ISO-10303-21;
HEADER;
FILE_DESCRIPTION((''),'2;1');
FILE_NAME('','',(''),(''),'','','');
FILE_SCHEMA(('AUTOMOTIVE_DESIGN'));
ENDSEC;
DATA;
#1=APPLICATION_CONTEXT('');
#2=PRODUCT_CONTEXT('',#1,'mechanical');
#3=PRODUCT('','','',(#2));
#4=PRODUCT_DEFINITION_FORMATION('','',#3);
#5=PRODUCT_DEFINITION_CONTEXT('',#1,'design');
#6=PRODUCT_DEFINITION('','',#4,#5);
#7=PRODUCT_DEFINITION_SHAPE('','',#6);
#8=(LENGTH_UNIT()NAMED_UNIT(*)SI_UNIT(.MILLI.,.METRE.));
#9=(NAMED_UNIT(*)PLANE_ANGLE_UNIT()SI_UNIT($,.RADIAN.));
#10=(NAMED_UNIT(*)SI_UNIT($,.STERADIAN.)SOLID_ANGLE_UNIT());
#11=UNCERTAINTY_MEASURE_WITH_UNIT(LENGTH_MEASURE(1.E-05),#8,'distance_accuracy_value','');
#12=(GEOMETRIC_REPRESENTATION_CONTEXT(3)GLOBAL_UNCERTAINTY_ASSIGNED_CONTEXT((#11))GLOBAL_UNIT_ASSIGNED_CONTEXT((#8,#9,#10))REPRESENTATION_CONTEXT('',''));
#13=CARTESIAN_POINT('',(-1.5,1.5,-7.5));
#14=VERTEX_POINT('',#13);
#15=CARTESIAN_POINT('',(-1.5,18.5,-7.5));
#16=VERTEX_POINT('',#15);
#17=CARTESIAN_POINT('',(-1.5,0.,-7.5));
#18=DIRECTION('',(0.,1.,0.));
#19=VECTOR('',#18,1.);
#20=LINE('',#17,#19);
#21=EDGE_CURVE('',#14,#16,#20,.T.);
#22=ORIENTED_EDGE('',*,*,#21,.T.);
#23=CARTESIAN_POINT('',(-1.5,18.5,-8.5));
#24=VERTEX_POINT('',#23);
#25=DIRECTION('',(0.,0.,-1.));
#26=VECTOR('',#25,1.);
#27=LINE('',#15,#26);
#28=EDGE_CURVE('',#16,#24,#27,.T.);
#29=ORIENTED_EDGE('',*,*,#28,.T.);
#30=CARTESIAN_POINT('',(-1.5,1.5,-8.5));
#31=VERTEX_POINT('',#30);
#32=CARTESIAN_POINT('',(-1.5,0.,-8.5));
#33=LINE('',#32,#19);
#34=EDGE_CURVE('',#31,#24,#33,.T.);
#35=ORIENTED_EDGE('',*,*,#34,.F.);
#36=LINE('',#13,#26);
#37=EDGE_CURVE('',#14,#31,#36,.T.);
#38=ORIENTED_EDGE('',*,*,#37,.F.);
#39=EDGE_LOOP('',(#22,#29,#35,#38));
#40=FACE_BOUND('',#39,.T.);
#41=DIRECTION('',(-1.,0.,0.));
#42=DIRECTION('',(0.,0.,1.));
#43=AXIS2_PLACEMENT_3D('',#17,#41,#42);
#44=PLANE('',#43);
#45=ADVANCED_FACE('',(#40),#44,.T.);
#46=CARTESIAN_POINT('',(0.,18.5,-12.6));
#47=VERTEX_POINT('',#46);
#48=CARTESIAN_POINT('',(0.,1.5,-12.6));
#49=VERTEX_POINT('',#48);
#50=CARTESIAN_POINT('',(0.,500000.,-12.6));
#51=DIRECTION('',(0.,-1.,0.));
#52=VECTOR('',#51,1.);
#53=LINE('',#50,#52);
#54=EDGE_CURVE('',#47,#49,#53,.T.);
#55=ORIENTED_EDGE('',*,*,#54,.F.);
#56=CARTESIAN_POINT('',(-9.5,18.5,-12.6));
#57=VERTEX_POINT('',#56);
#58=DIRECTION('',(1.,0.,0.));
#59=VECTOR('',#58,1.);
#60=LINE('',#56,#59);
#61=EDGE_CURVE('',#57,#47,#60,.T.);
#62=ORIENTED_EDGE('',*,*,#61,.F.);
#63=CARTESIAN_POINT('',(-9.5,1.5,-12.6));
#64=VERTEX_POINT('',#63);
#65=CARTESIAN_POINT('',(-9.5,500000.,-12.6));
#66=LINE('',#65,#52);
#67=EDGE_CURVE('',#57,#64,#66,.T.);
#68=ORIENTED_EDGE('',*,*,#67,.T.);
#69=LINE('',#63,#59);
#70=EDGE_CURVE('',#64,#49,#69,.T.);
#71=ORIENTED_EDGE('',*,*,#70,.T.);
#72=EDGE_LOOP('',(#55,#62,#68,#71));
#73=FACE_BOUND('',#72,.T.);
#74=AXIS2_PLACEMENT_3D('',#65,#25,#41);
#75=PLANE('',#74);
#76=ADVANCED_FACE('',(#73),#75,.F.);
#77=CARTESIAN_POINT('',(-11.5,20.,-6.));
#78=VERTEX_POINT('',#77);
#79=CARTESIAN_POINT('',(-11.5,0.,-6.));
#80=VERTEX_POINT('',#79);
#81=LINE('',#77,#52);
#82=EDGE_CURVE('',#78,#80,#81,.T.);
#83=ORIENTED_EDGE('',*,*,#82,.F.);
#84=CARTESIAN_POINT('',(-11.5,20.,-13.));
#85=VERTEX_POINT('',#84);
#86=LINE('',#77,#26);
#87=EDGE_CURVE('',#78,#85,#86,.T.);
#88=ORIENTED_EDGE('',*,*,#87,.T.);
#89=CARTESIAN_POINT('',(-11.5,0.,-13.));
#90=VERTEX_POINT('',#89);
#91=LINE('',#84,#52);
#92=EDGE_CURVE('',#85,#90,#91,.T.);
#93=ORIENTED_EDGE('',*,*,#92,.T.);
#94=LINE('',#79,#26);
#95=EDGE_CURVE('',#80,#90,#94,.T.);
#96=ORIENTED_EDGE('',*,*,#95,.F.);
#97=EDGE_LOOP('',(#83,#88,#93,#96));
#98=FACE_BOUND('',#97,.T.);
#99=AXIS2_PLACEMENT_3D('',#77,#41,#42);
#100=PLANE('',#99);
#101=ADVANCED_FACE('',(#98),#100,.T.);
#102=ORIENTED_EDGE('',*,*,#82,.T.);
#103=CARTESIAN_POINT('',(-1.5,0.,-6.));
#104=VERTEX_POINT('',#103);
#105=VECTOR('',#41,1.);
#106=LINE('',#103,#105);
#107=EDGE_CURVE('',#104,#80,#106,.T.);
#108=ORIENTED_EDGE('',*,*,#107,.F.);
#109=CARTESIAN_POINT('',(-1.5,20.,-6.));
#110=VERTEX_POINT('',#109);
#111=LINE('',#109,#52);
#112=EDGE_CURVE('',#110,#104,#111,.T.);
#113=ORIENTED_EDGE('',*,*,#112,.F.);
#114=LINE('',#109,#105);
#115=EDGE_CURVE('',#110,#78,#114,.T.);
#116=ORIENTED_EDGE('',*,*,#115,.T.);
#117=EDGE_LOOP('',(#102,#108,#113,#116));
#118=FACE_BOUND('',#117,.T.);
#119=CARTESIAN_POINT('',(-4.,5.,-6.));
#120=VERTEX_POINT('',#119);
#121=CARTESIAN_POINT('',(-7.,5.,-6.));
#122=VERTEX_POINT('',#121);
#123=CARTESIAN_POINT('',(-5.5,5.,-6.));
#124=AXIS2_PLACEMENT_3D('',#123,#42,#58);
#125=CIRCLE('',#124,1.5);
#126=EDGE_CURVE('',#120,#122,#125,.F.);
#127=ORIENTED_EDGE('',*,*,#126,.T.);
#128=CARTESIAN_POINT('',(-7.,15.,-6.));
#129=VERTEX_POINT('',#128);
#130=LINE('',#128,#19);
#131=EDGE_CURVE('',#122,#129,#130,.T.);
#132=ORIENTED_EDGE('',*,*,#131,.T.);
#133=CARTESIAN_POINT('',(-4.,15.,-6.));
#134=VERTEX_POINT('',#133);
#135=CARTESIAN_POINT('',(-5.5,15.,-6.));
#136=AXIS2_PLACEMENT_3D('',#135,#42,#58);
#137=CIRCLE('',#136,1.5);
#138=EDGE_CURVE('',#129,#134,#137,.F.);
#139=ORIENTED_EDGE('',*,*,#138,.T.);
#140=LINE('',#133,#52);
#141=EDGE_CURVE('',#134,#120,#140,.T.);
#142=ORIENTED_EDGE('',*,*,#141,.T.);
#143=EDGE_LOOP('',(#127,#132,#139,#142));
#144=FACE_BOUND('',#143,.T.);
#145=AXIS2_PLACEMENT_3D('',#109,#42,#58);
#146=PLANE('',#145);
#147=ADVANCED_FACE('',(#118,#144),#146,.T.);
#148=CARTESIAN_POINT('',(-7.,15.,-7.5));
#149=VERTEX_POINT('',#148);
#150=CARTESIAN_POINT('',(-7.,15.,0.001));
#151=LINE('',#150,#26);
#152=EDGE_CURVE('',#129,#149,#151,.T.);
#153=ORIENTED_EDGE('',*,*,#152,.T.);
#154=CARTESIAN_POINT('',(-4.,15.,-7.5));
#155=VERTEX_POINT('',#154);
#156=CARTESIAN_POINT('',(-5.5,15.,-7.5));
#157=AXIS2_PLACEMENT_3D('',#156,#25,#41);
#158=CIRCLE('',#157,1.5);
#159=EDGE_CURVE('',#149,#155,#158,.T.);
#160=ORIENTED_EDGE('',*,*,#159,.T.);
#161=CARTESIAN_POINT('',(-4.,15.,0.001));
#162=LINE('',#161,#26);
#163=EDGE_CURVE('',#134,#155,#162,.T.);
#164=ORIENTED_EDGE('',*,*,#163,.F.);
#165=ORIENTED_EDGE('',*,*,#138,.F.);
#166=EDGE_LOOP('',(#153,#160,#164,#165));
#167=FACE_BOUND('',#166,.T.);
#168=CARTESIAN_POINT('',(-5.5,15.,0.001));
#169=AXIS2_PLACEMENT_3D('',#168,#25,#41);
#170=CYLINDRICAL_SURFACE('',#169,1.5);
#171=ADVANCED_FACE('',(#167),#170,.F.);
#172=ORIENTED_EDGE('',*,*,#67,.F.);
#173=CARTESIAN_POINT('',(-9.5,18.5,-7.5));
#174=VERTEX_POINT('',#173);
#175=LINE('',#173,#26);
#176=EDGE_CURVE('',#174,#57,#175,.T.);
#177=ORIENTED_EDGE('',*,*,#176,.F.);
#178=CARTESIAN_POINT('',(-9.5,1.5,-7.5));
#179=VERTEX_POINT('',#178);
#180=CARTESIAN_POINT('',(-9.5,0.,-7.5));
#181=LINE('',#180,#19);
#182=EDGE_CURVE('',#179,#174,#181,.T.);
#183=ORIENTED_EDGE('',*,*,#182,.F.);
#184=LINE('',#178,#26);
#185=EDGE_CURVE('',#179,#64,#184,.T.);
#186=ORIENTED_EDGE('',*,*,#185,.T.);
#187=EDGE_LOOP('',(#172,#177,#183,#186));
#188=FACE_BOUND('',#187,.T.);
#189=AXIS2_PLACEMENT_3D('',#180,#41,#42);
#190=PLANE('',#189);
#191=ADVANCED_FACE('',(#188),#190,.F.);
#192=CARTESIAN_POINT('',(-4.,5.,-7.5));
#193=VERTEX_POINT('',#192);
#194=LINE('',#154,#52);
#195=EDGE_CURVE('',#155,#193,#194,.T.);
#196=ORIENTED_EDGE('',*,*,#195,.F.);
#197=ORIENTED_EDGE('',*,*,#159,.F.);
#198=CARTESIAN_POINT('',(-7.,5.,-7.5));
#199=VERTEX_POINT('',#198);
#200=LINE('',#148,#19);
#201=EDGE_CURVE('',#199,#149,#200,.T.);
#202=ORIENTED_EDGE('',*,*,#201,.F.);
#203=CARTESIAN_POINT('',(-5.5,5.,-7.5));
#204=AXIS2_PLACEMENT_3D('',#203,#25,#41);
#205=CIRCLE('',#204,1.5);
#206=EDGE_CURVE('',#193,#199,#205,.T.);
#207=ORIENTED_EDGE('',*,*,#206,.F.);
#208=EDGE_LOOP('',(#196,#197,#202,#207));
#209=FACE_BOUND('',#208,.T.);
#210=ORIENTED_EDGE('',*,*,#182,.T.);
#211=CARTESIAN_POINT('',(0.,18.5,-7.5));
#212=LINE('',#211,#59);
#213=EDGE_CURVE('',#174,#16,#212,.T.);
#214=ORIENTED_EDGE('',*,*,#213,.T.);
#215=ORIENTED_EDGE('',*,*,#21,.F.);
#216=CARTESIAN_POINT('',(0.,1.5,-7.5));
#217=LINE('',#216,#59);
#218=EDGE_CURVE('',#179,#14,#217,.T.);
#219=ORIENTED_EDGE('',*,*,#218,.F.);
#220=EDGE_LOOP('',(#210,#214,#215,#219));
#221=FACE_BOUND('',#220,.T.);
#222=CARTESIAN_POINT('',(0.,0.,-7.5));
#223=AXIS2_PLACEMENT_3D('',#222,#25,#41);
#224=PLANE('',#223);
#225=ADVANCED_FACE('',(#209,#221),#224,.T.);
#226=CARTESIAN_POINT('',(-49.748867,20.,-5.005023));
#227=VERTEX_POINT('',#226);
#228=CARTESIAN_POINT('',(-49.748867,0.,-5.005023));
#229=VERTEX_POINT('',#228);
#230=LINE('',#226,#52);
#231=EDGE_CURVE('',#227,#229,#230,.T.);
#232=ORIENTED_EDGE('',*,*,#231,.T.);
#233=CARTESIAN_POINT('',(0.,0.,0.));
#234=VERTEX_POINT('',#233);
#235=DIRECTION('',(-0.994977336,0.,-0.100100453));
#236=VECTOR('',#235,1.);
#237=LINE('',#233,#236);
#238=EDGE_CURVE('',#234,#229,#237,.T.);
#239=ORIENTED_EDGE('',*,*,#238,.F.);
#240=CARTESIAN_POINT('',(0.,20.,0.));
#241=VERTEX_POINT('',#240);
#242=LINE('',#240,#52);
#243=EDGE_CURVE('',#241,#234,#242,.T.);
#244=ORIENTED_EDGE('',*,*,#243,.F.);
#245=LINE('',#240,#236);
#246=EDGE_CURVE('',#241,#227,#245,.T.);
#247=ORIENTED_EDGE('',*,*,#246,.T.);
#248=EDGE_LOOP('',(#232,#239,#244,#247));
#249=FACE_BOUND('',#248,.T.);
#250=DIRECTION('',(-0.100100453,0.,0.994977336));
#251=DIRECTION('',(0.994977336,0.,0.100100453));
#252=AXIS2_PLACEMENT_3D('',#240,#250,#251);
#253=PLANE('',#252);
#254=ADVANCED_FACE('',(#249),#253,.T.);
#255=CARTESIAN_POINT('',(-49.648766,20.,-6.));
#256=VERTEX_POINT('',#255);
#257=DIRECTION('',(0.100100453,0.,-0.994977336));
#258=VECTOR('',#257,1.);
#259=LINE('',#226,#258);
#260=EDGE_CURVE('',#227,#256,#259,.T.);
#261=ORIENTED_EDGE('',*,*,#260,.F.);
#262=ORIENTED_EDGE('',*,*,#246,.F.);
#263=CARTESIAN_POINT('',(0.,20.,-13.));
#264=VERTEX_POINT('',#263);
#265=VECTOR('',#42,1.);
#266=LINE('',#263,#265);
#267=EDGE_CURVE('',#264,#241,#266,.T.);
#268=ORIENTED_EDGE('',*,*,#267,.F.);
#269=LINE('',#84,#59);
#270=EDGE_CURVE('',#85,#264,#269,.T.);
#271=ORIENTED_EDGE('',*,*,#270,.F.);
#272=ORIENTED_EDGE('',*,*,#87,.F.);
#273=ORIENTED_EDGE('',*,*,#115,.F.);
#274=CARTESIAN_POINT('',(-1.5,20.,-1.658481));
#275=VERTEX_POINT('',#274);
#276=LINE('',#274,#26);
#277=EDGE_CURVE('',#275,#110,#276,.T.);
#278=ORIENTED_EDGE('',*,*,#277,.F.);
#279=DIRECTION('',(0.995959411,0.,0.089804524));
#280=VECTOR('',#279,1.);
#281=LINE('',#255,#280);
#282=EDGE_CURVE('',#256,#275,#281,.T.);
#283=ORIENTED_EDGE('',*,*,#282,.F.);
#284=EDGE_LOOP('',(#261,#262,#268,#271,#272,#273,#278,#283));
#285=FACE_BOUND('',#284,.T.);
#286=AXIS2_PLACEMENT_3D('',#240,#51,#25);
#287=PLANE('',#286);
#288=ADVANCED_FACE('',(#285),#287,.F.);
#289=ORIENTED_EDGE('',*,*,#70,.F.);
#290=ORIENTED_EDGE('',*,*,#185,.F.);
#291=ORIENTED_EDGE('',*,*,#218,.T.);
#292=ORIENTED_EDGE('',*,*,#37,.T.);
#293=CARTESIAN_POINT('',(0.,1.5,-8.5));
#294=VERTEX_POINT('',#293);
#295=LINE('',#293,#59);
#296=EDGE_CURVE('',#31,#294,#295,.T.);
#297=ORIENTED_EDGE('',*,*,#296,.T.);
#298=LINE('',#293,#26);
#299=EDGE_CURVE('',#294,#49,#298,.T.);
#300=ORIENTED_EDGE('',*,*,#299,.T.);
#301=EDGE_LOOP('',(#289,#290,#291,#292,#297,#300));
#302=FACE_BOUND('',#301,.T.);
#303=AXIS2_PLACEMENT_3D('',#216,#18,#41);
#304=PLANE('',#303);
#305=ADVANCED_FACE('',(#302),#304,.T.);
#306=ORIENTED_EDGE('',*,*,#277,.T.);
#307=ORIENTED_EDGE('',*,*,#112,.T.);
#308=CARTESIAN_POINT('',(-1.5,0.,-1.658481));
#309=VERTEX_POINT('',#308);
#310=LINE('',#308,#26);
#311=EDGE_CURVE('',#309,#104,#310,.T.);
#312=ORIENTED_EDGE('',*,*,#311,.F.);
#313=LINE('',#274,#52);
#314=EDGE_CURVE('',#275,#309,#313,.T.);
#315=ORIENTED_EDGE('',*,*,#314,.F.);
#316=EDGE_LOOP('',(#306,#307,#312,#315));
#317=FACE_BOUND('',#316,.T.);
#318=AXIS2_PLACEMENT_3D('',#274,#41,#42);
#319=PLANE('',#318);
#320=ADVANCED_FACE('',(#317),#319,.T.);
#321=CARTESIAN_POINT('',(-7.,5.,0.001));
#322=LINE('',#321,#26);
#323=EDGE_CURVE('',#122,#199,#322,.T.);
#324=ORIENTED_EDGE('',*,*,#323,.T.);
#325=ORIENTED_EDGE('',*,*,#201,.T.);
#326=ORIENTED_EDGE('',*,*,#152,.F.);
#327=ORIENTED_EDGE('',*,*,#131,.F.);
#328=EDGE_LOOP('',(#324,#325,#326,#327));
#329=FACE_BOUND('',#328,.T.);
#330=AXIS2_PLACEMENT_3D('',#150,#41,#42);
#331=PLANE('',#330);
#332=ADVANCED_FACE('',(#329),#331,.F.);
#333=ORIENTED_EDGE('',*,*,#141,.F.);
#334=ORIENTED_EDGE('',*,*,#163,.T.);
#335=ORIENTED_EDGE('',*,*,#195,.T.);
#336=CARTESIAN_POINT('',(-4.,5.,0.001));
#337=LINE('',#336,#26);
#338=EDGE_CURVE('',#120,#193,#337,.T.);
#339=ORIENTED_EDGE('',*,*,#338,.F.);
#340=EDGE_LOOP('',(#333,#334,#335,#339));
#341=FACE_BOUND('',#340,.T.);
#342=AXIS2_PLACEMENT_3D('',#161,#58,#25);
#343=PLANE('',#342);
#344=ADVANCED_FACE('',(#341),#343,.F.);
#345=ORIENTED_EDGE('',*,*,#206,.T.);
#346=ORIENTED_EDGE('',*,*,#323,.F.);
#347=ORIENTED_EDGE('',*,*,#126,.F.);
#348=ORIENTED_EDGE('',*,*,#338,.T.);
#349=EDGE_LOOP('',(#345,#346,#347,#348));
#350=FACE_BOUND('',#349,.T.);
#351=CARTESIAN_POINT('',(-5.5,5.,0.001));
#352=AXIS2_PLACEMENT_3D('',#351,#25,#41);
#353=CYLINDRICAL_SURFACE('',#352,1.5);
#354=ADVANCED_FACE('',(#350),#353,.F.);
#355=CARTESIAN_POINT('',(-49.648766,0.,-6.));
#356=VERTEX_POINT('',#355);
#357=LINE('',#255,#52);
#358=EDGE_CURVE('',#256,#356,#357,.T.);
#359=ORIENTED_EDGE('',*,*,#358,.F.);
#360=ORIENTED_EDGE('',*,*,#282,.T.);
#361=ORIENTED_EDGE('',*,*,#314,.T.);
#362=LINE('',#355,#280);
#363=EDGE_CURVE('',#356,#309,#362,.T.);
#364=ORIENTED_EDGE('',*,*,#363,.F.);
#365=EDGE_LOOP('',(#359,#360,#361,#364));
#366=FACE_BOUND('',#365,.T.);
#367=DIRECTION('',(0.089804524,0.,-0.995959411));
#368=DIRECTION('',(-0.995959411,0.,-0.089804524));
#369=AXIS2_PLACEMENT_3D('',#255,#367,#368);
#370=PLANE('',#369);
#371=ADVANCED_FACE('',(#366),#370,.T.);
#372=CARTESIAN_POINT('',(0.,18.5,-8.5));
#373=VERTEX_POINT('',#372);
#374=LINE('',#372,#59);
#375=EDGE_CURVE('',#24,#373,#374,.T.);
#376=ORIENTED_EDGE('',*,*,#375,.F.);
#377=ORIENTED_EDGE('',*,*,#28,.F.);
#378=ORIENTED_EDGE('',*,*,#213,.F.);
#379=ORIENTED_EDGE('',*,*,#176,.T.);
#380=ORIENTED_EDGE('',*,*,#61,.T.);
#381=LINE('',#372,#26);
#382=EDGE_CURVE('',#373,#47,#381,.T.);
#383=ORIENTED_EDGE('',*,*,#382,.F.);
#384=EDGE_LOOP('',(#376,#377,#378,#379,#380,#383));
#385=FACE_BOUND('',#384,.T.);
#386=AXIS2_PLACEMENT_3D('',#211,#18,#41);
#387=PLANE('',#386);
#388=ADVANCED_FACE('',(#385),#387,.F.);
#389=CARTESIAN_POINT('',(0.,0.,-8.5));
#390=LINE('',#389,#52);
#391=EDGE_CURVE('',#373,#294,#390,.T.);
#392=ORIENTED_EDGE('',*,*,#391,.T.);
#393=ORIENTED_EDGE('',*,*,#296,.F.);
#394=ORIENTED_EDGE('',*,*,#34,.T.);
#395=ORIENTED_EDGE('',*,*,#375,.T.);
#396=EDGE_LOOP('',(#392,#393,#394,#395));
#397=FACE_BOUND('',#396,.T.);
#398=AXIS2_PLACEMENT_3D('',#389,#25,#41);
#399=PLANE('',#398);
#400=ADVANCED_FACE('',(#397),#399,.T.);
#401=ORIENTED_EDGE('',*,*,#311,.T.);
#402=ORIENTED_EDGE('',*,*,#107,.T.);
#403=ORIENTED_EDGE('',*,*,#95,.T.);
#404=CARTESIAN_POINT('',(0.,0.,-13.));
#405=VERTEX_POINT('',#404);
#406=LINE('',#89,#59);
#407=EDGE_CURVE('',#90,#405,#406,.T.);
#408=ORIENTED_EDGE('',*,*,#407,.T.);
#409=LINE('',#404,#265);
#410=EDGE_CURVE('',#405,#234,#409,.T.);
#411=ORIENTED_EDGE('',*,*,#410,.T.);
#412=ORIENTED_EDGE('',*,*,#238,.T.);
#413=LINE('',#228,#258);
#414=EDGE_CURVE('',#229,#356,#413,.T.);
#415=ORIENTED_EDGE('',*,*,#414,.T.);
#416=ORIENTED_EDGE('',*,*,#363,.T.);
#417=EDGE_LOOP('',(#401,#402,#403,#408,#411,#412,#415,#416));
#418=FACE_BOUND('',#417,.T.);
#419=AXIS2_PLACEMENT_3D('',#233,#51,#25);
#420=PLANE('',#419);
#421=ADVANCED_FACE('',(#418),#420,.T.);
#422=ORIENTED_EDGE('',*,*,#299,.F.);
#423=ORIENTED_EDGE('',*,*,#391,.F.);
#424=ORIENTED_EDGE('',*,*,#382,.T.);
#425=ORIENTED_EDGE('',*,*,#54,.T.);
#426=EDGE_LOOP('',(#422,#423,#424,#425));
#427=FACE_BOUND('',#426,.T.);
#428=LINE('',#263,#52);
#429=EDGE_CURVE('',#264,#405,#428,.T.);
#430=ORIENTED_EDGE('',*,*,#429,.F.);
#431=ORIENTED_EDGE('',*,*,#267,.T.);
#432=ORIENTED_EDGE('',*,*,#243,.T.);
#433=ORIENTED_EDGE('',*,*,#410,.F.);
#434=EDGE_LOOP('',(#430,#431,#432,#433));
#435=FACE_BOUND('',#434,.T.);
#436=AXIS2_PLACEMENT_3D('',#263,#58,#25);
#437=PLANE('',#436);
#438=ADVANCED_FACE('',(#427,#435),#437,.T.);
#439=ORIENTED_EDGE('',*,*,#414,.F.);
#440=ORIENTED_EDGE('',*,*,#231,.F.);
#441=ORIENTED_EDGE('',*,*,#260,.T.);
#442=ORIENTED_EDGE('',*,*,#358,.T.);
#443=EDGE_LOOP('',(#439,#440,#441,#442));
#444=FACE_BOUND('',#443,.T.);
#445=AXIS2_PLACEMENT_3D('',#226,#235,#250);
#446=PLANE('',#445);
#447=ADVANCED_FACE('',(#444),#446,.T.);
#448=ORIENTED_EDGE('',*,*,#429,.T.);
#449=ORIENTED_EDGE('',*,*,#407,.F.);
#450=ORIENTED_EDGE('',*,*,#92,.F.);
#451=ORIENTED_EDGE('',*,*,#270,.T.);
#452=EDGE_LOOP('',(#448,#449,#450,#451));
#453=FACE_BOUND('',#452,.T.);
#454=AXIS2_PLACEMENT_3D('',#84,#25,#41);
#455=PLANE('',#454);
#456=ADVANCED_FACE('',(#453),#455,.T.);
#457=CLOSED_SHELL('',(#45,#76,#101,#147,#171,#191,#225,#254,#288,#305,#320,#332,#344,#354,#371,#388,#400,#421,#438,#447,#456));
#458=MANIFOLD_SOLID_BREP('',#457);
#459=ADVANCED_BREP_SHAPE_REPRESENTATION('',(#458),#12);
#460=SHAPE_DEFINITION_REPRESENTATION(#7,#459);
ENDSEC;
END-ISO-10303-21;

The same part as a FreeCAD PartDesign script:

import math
import FreeCAD as App
import Part
import Sketcher


def add_polygon(sketch, points):
    """Adds a closed chain of lines whose ends are joined by coincident constraints."""
    first, n = sketch.GeometryCount, len(points)
    for a, b in zip(points, points[1:] + points[:1]):
        sketch.addGeometry(Part.LineSegment(App.Vector(*a, 0), App.Vector(*b, 0)), False)
    for i in range(n):
        sketch.addConstraint(Sketcher.Constraint("Coincident", first + i, 2, first + (i + 1) % n, 1))

doc = App.newDocument("Part")
body = doc.addObject("PartDesign::Body", "Body")

sketch1 = doc.addObject("Sketcher::SketchObject", "Sketch")
body.addObject(sketch1)
sketch1.AttachmentSupport = (doc.XZ_Plane, [""])
sketch1.MapMode = "FlatFace"
add_polygon(sketch1, [(0, -13), (-11.5, -13), (-11.5, -6), (-1.5, -6), (-1.5, -1.7), (-49.6, -6), (-49.7, -5), (0, 0)])
sketch1.addConstraint([
    Sketcher.Constraint("Horizontal", 0),
    Sketcher.Constraint("Vertical", 1),
    Sketcher.Constraint("Horizontal", 2),
    Sketcher.Constraint("Vertical", 3),
    Sketcher.Constraint("Vertical", 7),
    Sketcher.Constraint("Coincident", 6, 2, -1, 1),
    Sketcher.Constraint("Perpendicular", 5, 6),
    Sketcher.Constraint("Horizontal", 2, 2, 4, 2),
    Sketcher.Constraint("DistanceX", 2, 1, 2, 2, 10.0),
    Sketcher.Constraint("DistanceY", 1, 1, 1, 2, 7.0),
    Sketcher.Constraint("DistanceY", 7, 2, 7, 1, 13.0),
    Sketcher.Constraint("Distance", 5, 1.0),
    Sketcher.Constraint("Distance", 6, 50.0),
    Sketcher.Constraint("DistanceX", 0, 2, 0, 1, 11.5),
    Sketcher.Constraint("DistanceY", 3, 1, 3, 2, 4.341519),
])
pad1 = doc.addObject("PartDesign::Pad", "Pad")
body.addObject(pad1)
pad1.Profile = sketch1
pad1.Length = 20
pad1.Reversed = True

sketch2 = doc.addObject("Sketcher::SketchObject", "Sketch001")
body.addObject(sketch2)
sketch2.AttachmentSupport = (doc.XY_Plane, [""])
sketch2.MapMode = "FlatFace"
sketch2.AttachmentOffset = App.Placement(App.Vector(0, 0, -13), App.Rotation())
add_polygon(sketch2, [(-2, 18), (-2, 2), (-10, 2), (-10, 18)])
sketch2.addConstraint([
    Sketcher.Constraint("Vertical", 0),
    Sketcher.Constraint("Horizontal", 1),
    Sketcher.Constraint("Vertical", 2),
    Sketcher.Constraint("Horizontal", 3),
    Sketcher.Constraint("DistanceX", 1, 2, 1, 1, 8.0),
    Sketcher.Constraint("DistanceY", 0, 2, 0, 1, 17.0),
    Sketcher.Constraint("DistanceX", 0, 2, -1, 1, 1.5),
    Sketcher.Constraint("DistanceY", -1, 1, 0, 2, 1.5),
])
pocket1 = doc.addObject("PartDesign::Pocket", "Pocket")
body.addObject(pocket1)
pocket1.Profile = sketch2
pocket1.Length = 5.5
pocket1.Reversed = True

sketch3 = doc.addObject("Sketcher::SketchObject", "Sketch002")
body.addObject(sketch3)
sketch3.AttachmentSupport = (doc.XY_Plane, [""])
sketch3.MapMode = "FlatFace"
sketch3.AttachmentOffset = App.Placement(App.Vector(0, 0, -13), App.Rotation())
add_polygon(sketch3, [(0, 18.5), (0, 1.5), (-1.5, 1.5), (-1.5, 18.5)])
sketch3.addConstraint([
    Sketcher.Constraint("Vertical", 0),
    Sketcher.Constraint("Horizontal", 1),
    Sketcher.Constraint("Vertical", 2),
    Sketcher.Constraint("Horizontal", 3),
    Sketcher.Constraint("PointOnObject", 0, 2, -2),
    Sketcher.Constraint("DistanceY", 0, 2, 0, 1, 17.0),
    Sketcher.Constraint("DistanceX", 1, 2, 1, 1, 1.5),
    Sketcher.Constraint("DistanceY", -1, 1, 0, 2, 1.5),
])
pocket2 = doc.addObject("PartDesign::Pocket", "Pocket001")
body.addObject(pocket2)
pocket2.Profile = sketch3
pocket2.Length = 4.5
pocket2.Reversed = True

sketch4 = doc.addObject("Sketcher::SketchObject", "Sketch003")
body.addObject(sketch4)
sketch4.AttachmentSupport = (doc.XY_Plane, [""])
sketch4.MapMode = "FlatFace"
sketch4.AttachmentOffset = App.Placement(App.Vector(0, 0, -7.5), App.Rotation())
sketch4.addGeometry([
    Part.LineSegment(App.Vector(-7, 5, 0), App.Vector(-7, 15, 0)),
    Part.ArcOfCircle(Part.Circle(App.Vector(-5.5, 15, 0), App.Vector(0, 0, 1), 1.5), math.radians(0), math.radians(180)),
    Part.LineSegment(App.Vector(-4, 15, 0), App.Vector(-4, 5, 0)),
    Part.ArcOfCircle(Part.Circle(App.Vector(-5.5, 5, 0), App.Vector(0, 0, 1), 1.5), math.radians(180), math.radians(360)),
], False)
sketch4.addConstraint([
    Sketcher.Constraint("Tangent", 0, 2, 1, 2),
    Sketcher.Constraint("Tangent", 1, 1, 2, 1),
    Sketcher.Constraint("Tangent", 2, 2, 3, 2),
    Sketcher.Constraint("Tangent", 3, 1, 0, 1),
    Sketcher.Constraint("Vertical", 0),
    Sketcher.Constraint("Vertical", 2),
    Sketcher.Constraint("Radius", 1, 1.5),
    Sketcher.Constraint("DistanceY", 0, 1, 0, 2, 10.0),
    Sketcher.Constraint("DistanceY", -1, 1, 1, 3, 15.0),
    Sketcher.Constraint("DistanceX", 0, 2, -1, 1, 7.0),
])
pocket3 = doc.addObject("PartDesign::Pocket", "Pocket002")
body.addObject(pocket3)
pocket3.Profile = sketch4
pocket3.Type = "UpToFirst"
pocket3.Reversed = True

sketch5 = doc.addObject("Sketcher::SketchObject", "Sketch004")
body.addObject(sketch5)
sketch5.AttachmentSupport = (doc.XZ_Plane, [""])
sketch5.MapMode = "FlatFace"
sketch5.AttachmentOffset = App.Placement(App.Vector(0, 0, -1.5), App.Rotation())
add_polygon(sketch5, [(-9.5, -13), (-9.5, -12.6), (0, -12.6), (0, -13)])
sketch5.addConstraint([
    Sketcher.Constraint("Vertical", 0),
    Sketcher.Constraint("Horizontal", 1),
    Sketcher.Constraint("Vertical", 2),
    Sketcher.Constraint("Horizontal", 3),
    Sketcher.Constraint("PointOnObject", 1, 2, -2),
    Sketcher.Constraint("DistanceX", 1, 1, 1, 2, 9.5),
    Sketcher.Constraint("DistanceY", 0, 1, 0, 2, 0.4),
    Sketcher.Constraint("DistanceY", 2, 2, -1, 1, 13.0),
])
pad2 = doc.addObject("PartDesign::Pad", "Pad001")
body.addObject(pad2)
pad2.Profile = sketch5
pad2.Type = "UpToFirst"
pad2.Reversed = True

doc.recompute()
